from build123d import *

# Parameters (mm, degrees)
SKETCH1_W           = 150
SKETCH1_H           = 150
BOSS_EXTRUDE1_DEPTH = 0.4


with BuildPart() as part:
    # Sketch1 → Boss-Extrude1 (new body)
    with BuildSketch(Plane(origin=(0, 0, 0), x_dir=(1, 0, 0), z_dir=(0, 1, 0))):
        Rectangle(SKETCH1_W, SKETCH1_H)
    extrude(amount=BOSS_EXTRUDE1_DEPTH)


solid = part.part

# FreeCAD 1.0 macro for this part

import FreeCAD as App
import Part
import Sketcher
Q = App.Units.Quantity

doc = App.newDocument("Part")
body = doc.addObject("PartDesign::Body", "Body")

sketch1 = doc.addObject("Sketcher::SketchObject", "Sketch")
body.addObject(sketch1)
sketch1.AttachmentSupport = (doc.XZ_Plane, [""])
sketch1.MapMode = "FlatFace"
sketch1.addGeometry(Part.LineSegment(App.Vector(-75, -75, 0), App.Vector(-75, 75, 0)), False)
sketch1.addGeometry(Part.LineSegment(App.Vector(-75, 75, 0), App.Vector(75, 75, 0)), False)
sketch1.addGeometry(Part.LineSegment(App.Vector(75, 75, 0), App.Vector(75, -75, 0)), False)
sketch1.addGeometry(Part.LineSegment(App.Vector(75, -75, 0), App.Vector(-75, -75, 0)), False)
sketch1.addConstraint(Sketcher.Constraint("Coincident", 0, 2, 1, 1))
sketch1.addConstraint(Sketcher.Constraint("Coincident", 1, 2, 2, 1))
sketch1.addConstraint(Sketcher.Constraint("Coincident", 2, 2, 3, 1))
sketch1.addConstraint(Sketcher.Constraint("Coincident", 3, 2, 0, 1))
sketch1.addConstraint(Sketcher.Constraint("Vertical", 0))
sketch1.addConstraint(Sketcher.Constraint("Horizontal", 1))
sketch1.addConstraint(Sketcher.Constraint("Vertical", 2))
sketch1.addConstraint(Sketcher.Constraint("Horizontal", 3))
sketch1.addConstraint(Sketcher.Constraint("Symmetric", 0, 2, 2, 2, -1, 1))
sketch1.addConstraint(Sketcher.Constraint("Equal", 3, 0))
sketch1.addConstraint(Sketcher.Constraint("DistanceX", 1, 1, 1, 2, Q("150 mm")))
pad1 = doc.addObject("PartDesign::Pad", "Pad")
body.addObject(pad1)
pad1.Profile = sketch1
pad1.Length = 0.4
pad1.Reversed = True

doc.recompute()
